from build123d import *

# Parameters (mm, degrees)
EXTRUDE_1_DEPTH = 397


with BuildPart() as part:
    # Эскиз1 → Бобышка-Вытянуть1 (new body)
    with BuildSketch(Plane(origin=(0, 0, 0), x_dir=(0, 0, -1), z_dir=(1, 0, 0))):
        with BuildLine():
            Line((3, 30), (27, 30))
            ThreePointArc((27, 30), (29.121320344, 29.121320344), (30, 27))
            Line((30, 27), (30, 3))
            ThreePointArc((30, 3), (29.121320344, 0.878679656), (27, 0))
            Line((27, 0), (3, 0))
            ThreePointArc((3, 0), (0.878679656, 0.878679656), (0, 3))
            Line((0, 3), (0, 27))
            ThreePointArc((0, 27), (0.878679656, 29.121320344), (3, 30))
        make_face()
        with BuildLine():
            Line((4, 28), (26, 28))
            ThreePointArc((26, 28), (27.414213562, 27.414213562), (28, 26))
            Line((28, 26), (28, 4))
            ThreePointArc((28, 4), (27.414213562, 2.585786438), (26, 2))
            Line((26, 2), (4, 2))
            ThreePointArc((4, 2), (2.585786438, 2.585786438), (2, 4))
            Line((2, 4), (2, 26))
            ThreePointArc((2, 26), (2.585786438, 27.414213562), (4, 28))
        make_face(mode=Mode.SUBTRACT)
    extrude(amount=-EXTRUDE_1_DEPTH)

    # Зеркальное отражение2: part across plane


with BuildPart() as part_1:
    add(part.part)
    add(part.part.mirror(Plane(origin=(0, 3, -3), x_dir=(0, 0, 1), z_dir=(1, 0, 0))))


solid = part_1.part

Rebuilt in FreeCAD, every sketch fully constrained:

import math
import FreeCAD as App
import Part
import Sketcher
from FreeCAD import Vector
Q = App.Units.Quantity

doc = App.newDocument("Part")
body = doc.addObject("PartDesign::Body", "Body")

sketch1 = body.newObject("Sketcher::SketchObject", "Sketch")
sketch1.AttachmentSupport = (doc.getObject("YZ_Plane"), [""])
sketch1.MapMode = "FlatFace"
sketch1.addGeometry([
    Part.LineSegment(Vector(30, -27, 0), Vector(30, -3, 0)),
    Part.ArcOfCircle(Part.Circle(Vector(27, -3, 0), Vector(0, 0, 1), 3), math.radians(0), math.radians(90)),
    Part.LineSegment(Vector(27, 0, 0), Vector(3, 0, 0)),
    Part.ArcOfCircle(Part.Circle(Vector(3, -3, 0), Vector(0, 0, 1), 3), math.radians(90), math.radians(180)),
    Part.LineSegment(Vector(0, -3, 0), Vector(0, -27, 0)),
    Part.ArcOfCircle(Part.Circle(Vector(3, -27, 0), Vector(0, 0, 1), 3), math.radians(180), math.radians(270)),
    Part.LineSegment(Vector(3, -30, 0), Vector(27, -30, 0)),
    Part.ArcOfCircle(Part.Circle(Vector(27, -27, 0), Vector(0, 0, 1), 3), math.radians(-90), math.radians(0)),
    Part.LineSegment(Vector(28, -4, 0), Vector(28, -26, 0)),
    Part.ArcOfCircle(Part.Circle(Vector(26, -26, 0), Vector(0, 0, 1), 2), math.radians(-90), math.radians(0)),
    Part.LineSegment(Vector(26, -28, 0), Vector(4, -28, 0)),
    Part.ArcOfCircle(Part.Circle(Vector(4, -26, 0), Vector(0, 0, 1), 2), math.radians(-180), math.radians(-90)),
    Part.LineSegment(Vector(2, -26, 0), Vector(2, -4, 0)),
    Part.ArcOfCircle(Part.Circle(Vector(4, -4, 0), Vector(0, 0, 1), 2), math.radians(90), math.radians(180)),
    Part.LineSegment(Vector(4, -2, 0), Vector(26, -2, 0)),
    Part.ArcOfCircle(Part.Circle(Vector(26, -4, 0), Vector(0, 0, 1), 2), math.radians(0), math.radians(90)),
], False)
sketch1.addConstraint([
    Sketcher.Constraint("Tangent", 0, 2, 1, 1),
    Sketcher.Constraint("Tangent", 1, 2, 2, 1),
    Sketcher.Constraint("Tangent", 2, 2, 3, 1),
    Sketcher.Constraint("Tangent", 3, 2, 4, 1),
    Sketcher.Constraint("Tangent", 4, 2, 5, 1),
    Sketcher.Constraint("Tangent", 5, 2, 6, 1),
    Sketcher.Constraint("Tangent", 6, 2, 7, 1),
    Sketcher.Constraint("Tangent", 7, 2, 0, 1),
    Sketcher.Constraint("Tangent", 8, 2, 9, 2),
    Sketcher.Constraint("Tangent", 9, 1, 10, 1),
    Sketcher.Constraint("Tangent", 10, 2, 11, 2),
    Sketcher.Constraint("Tangent", 11, 1, 12, 1),
    Sketcher.Constraint("Tangent", 12, 2, 13, 2),
    Sketcher.Constraint("Tangent", 13, 1, 14, 1),
    Sketcher.Constraint("Tangent", 14, 2, 15, 2),
    Sketcher.Constraint("Tangent", 15, 1, 8, 1),
    Sketcher.Constraint("Vertical", 0),
    Sketcher.Constraint("Horizontal", 2),
    Sketcher.Constraint("Vertical", 4),
    Sketcher.Constraint("Horizontal", 6),
    Sketcher.Constraint("Vertical", 8),
    Sketcher.Constraint("Horizontal", 10),
    Sketcher.Constraint("Vertical", 12),
    Sketcher.Constraint("Horizontal", 14),
    Sketcher.Constraint("Equal", 1, 3),
    Sketcher.Constraint("Equal", 3, 5),
    Sketcher.Constraint("Equal", 5, 7),
    Sketcher.Constraint("Equal", 9, 11),
    Sketcher.Constraint("Equal", 11, 13),
    Sketcher.Constraint("Equal", 13, 15),
    Sketcher.Constraint("PointOnObject", 1, 2, -1),
    Sketcher.Constraint("PointOnObject", 3, 2, -2),
    Sketcher.Constraint("Equal", 6, 0),
    Sketcher.Constraint("Equal", 14, 8),
    Sketcher.Constraint("Radius", 1, Q("3 mm")),
    Sketcher.Constraint("Radius", 9, Q("2 mm")),
    Sketcher.Constraint("DistanceX", 2, 2, 2, 1, Q("24 mm")),
    Sketcher.Constraint("DistanceX", 10, 2, 10, 1, Q("22 mm")),
    Sketcher.Constraint("DistanceX", -1, 1, 9, 3, Q("26 mm")),
    Sketcher.Constraint("DistanceY", 9, 3, -1, 1, Q("26 mm")),
])
pad1 = body.newObject("PartDesign::Pad", "Pad")
pad1.Profile = sketch1
pad1.Length = 397
pad1.Reversed = True
body2 = doc.addObject("PartDesign::Body", "Body001")
doc.recompute()

body2.BaseFeature = body
doc.recompute()

mirroring = doc.addObject("Part::Mirroring", "Mirroring")
mirroring.Source = body
mirroring.Base = Vector(0, 3, -3)
mirroring.Normal = Vector(1, 0, 0)
body3 = doc.addObject("PartDesign::Body", "Body002")
body3.BaseFeature = mirroring
boolean = body2.newObject("PartDesign::Boolean", "Boolean")
boolean.Type = "Fuse"
boolean.addObjects([body3])
doc.recompute()
mirroring.Visibility = False

doc.recompute()
